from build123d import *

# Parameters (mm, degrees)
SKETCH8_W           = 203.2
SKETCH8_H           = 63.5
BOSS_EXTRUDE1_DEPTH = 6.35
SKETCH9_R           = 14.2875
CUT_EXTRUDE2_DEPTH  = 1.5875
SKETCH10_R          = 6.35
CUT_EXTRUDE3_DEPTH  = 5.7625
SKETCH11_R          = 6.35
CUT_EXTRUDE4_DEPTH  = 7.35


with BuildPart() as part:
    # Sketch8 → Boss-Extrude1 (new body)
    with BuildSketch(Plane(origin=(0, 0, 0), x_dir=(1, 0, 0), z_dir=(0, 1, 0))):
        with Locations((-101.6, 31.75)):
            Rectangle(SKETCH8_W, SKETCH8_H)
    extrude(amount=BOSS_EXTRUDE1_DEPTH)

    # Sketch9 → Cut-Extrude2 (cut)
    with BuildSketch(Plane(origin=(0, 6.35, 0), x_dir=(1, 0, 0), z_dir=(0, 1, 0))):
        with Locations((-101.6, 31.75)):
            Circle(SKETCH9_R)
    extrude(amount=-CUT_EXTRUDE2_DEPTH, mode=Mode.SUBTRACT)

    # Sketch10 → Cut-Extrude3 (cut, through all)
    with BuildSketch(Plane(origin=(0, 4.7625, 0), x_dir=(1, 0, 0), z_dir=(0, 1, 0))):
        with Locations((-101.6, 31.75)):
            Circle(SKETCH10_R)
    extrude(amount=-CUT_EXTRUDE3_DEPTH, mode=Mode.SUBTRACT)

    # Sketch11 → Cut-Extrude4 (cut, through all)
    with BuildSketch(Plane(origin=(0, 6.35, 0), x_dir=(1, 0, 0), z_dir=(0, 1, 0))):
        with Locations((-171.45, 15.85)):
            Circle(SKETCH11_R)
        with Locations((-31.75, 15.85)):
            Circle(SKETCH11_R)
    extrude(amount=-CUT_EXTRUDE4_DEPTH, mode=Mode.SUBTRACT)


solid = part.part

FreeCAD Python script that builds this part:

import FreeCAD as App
import Part
import Sketcher
from FreeCAD import Vector
Q = App.Units.Quantity


def add_polygon(sketch, points):
    """Adds a closed chain of lines whose ends are joined by coincident constraints."""
    first, n = sketch.GeometryCount, len(points)
    for a, b in zip(points, points[1:] + points[:1]):
        sketch.addGeometry(Part.LineSegment(App.Vector(*a, 0), App.Vector(*b, 0)), False)
    for i in range(n):
        sketch.addConstraint(Sketcher.Constraint("Coincident", first + i, 2, first + (i + 1) % n, 1))

doc = App.newDocument("Part")
body = doc.addObject("PartDesign::Body", "Body")

# Sketch on XZ plane
sketch1 = body.newObject("Sketcher::SketchObject", "Sketch")
sketch1.AttachmentSupport = (doc.getObject("XZ_Plane"), [""])
sketch1.MapMode = "FlatFace"
add_polygon(sketch1, [(-203.2, -63.5), (-203.2, 0), (0, 0), (0, -63.5)])  # lines 0-3
sketch1.addConstraint(Sketcher.Constraint("Vertical", 0))
sketch1.addConstraint(Sketcher.Constraint("Horizontal", 1))
sketch1.addConstraint(Sketcher.Constraint("Vertical", 2))
sketch1.addConstraint(Sketcher.Constraint("Horizontal", 3))
sketch1.addConstraint(Sketcher.Constraint("Coincident", 1, 2, -1, 1))
sketch1.addConstraint(Sketcher.Constraint("DistanceX", 1, 1, 1, 2, Q("8 in")))
sketch1.addConstraint(Sketcher.Constraint("DistanceY", 0, 1, 0, 2, Q("2.5 in")))
pad1 = body.newObject("PartDesign::Pad", "Pad")
pad1.Profile = sketch1
pad1.Length = Q("0.25 in")
pad1.Reversed = True

# Sketch on XZ plane
sketch2 = body.newObject("Sketcher::SketchObject", "Sketch001")
sketch2.AttachmentSupport = (doc.getObject("XZ_Plane"), [""])
sketch2.MapMode = "FlatFace"
sketch2.AttachmentOffset = App.Placement(Vector(0, 0, -0.25 * 25.4), App.Rotation())
sketch2.addGeometry(Part.Circle(Vector(-101.6, -31.75, 0), Vector(0, 0, 1), 14.2875), False)
sketch2.addConstraint(Sketcher.Constraint("Diameter", 0, Q("1.125 in")))
sketch2.addConstraint(Sketcher.Constraint("DistanceX", 0, 3, -1, 1, Q("4 in")))
sketch2.addConstraint(Sketcher.Constraint("DistanceY", 0, 3, -1, 1, Q("1.25 in")))
pocket1 = body.newObject("PartDesign::Pocket", "Pocket")
pocket1.Profile = sketch2
pocket1.Length = Q("0.0625 in")
pocket1.Reversed = True

# Sketch on XZ plane
sketch3 = body.newObject("Sketcher::SketchObject", "Sketch002")
sketch3.AttachmentSupport = (doc.getObject("XZ_Plane"), [""])
sketch3.MapMode = "FlatFace"
sketch3.AttachmentOffset = App.Placement(Vector(0, 0, -0.1875 * 25.4), App.Rotation())
sketch3.addGeometry(Part.Circle(Vector(-101.6, -31.75, 0), Vector(0, 0, 1), 6.35), False)
sketch3.addConstraint(Sketcher.Constraint("Diameter", 0, Q("0.5 in")))
sketch3.addConstraint(Sketcher.Constraint("DistanceX", 0, 3, -1, 1, Q("4 in")))
sketch3.addConstraint(Sketcher.Constraint("DistanceY", 0, 3, -1, 1, Q("1.25 in")))
pocket2 = body.newObject("PartDesign::Pocket", "Pocket001")
pocket2.Profile = sketch3
pocket2.Type = "ThroughAll"
pocket2.Reversed = True

# Sketch on XZ plane
sketch4 = body.newObject("Sketcher::SketchObject", "Sketch003")
sketch4.AttachmentSupport = (doc.getObject("XZ_Plane"), [""])
sketch4.MapMode = "FlatFace"
sketch4.AttachmentOffset = App.Placement(Vector(0, 0, -0.25 * 25.4), App.Rotation())
sketch4.addGeometry(Part.Circle(Vector(-171.45, -15.85, 0), Vector(0, 0, 1), 6.35), False)
sketch4.addGeometry(Part.Circle(Vector(-31.75, -15.85, 0), Vector(0, 0, 1), 6.35), False)
sketch4.addConstraint(Sketcher.Constraint("Equal", 0, 1))
sketch4.addConstraint(Sketcher.Constraint("Horizontal", 0, 3, 1, 3))
sketch4.addConstraint(Sketcher.Constraint("Diameter", 0, Q("0.5 in")))
sketch4.addConstraint(Sketcher.Constraint("DistanceX", 0, 3, 1, 3, Q("5.5 in")))
sketch4.addConstraint(Sketcher.Constraint("DistanceX", 0, 3, -1, 1, Q("6.75 in")))
sketch4.addConstraint(Sketcher.Constraint("DistanceY", 0, 3, -1, 1, Q("15.85 mm")))
pocket3 = body.newObject("PartDesign::Pocket", "Pocket002")
pocket3.Profile = sketch4
pocket3.Type = "ThroughAll"
pocket3.Reversed = True

doc.recompute()
